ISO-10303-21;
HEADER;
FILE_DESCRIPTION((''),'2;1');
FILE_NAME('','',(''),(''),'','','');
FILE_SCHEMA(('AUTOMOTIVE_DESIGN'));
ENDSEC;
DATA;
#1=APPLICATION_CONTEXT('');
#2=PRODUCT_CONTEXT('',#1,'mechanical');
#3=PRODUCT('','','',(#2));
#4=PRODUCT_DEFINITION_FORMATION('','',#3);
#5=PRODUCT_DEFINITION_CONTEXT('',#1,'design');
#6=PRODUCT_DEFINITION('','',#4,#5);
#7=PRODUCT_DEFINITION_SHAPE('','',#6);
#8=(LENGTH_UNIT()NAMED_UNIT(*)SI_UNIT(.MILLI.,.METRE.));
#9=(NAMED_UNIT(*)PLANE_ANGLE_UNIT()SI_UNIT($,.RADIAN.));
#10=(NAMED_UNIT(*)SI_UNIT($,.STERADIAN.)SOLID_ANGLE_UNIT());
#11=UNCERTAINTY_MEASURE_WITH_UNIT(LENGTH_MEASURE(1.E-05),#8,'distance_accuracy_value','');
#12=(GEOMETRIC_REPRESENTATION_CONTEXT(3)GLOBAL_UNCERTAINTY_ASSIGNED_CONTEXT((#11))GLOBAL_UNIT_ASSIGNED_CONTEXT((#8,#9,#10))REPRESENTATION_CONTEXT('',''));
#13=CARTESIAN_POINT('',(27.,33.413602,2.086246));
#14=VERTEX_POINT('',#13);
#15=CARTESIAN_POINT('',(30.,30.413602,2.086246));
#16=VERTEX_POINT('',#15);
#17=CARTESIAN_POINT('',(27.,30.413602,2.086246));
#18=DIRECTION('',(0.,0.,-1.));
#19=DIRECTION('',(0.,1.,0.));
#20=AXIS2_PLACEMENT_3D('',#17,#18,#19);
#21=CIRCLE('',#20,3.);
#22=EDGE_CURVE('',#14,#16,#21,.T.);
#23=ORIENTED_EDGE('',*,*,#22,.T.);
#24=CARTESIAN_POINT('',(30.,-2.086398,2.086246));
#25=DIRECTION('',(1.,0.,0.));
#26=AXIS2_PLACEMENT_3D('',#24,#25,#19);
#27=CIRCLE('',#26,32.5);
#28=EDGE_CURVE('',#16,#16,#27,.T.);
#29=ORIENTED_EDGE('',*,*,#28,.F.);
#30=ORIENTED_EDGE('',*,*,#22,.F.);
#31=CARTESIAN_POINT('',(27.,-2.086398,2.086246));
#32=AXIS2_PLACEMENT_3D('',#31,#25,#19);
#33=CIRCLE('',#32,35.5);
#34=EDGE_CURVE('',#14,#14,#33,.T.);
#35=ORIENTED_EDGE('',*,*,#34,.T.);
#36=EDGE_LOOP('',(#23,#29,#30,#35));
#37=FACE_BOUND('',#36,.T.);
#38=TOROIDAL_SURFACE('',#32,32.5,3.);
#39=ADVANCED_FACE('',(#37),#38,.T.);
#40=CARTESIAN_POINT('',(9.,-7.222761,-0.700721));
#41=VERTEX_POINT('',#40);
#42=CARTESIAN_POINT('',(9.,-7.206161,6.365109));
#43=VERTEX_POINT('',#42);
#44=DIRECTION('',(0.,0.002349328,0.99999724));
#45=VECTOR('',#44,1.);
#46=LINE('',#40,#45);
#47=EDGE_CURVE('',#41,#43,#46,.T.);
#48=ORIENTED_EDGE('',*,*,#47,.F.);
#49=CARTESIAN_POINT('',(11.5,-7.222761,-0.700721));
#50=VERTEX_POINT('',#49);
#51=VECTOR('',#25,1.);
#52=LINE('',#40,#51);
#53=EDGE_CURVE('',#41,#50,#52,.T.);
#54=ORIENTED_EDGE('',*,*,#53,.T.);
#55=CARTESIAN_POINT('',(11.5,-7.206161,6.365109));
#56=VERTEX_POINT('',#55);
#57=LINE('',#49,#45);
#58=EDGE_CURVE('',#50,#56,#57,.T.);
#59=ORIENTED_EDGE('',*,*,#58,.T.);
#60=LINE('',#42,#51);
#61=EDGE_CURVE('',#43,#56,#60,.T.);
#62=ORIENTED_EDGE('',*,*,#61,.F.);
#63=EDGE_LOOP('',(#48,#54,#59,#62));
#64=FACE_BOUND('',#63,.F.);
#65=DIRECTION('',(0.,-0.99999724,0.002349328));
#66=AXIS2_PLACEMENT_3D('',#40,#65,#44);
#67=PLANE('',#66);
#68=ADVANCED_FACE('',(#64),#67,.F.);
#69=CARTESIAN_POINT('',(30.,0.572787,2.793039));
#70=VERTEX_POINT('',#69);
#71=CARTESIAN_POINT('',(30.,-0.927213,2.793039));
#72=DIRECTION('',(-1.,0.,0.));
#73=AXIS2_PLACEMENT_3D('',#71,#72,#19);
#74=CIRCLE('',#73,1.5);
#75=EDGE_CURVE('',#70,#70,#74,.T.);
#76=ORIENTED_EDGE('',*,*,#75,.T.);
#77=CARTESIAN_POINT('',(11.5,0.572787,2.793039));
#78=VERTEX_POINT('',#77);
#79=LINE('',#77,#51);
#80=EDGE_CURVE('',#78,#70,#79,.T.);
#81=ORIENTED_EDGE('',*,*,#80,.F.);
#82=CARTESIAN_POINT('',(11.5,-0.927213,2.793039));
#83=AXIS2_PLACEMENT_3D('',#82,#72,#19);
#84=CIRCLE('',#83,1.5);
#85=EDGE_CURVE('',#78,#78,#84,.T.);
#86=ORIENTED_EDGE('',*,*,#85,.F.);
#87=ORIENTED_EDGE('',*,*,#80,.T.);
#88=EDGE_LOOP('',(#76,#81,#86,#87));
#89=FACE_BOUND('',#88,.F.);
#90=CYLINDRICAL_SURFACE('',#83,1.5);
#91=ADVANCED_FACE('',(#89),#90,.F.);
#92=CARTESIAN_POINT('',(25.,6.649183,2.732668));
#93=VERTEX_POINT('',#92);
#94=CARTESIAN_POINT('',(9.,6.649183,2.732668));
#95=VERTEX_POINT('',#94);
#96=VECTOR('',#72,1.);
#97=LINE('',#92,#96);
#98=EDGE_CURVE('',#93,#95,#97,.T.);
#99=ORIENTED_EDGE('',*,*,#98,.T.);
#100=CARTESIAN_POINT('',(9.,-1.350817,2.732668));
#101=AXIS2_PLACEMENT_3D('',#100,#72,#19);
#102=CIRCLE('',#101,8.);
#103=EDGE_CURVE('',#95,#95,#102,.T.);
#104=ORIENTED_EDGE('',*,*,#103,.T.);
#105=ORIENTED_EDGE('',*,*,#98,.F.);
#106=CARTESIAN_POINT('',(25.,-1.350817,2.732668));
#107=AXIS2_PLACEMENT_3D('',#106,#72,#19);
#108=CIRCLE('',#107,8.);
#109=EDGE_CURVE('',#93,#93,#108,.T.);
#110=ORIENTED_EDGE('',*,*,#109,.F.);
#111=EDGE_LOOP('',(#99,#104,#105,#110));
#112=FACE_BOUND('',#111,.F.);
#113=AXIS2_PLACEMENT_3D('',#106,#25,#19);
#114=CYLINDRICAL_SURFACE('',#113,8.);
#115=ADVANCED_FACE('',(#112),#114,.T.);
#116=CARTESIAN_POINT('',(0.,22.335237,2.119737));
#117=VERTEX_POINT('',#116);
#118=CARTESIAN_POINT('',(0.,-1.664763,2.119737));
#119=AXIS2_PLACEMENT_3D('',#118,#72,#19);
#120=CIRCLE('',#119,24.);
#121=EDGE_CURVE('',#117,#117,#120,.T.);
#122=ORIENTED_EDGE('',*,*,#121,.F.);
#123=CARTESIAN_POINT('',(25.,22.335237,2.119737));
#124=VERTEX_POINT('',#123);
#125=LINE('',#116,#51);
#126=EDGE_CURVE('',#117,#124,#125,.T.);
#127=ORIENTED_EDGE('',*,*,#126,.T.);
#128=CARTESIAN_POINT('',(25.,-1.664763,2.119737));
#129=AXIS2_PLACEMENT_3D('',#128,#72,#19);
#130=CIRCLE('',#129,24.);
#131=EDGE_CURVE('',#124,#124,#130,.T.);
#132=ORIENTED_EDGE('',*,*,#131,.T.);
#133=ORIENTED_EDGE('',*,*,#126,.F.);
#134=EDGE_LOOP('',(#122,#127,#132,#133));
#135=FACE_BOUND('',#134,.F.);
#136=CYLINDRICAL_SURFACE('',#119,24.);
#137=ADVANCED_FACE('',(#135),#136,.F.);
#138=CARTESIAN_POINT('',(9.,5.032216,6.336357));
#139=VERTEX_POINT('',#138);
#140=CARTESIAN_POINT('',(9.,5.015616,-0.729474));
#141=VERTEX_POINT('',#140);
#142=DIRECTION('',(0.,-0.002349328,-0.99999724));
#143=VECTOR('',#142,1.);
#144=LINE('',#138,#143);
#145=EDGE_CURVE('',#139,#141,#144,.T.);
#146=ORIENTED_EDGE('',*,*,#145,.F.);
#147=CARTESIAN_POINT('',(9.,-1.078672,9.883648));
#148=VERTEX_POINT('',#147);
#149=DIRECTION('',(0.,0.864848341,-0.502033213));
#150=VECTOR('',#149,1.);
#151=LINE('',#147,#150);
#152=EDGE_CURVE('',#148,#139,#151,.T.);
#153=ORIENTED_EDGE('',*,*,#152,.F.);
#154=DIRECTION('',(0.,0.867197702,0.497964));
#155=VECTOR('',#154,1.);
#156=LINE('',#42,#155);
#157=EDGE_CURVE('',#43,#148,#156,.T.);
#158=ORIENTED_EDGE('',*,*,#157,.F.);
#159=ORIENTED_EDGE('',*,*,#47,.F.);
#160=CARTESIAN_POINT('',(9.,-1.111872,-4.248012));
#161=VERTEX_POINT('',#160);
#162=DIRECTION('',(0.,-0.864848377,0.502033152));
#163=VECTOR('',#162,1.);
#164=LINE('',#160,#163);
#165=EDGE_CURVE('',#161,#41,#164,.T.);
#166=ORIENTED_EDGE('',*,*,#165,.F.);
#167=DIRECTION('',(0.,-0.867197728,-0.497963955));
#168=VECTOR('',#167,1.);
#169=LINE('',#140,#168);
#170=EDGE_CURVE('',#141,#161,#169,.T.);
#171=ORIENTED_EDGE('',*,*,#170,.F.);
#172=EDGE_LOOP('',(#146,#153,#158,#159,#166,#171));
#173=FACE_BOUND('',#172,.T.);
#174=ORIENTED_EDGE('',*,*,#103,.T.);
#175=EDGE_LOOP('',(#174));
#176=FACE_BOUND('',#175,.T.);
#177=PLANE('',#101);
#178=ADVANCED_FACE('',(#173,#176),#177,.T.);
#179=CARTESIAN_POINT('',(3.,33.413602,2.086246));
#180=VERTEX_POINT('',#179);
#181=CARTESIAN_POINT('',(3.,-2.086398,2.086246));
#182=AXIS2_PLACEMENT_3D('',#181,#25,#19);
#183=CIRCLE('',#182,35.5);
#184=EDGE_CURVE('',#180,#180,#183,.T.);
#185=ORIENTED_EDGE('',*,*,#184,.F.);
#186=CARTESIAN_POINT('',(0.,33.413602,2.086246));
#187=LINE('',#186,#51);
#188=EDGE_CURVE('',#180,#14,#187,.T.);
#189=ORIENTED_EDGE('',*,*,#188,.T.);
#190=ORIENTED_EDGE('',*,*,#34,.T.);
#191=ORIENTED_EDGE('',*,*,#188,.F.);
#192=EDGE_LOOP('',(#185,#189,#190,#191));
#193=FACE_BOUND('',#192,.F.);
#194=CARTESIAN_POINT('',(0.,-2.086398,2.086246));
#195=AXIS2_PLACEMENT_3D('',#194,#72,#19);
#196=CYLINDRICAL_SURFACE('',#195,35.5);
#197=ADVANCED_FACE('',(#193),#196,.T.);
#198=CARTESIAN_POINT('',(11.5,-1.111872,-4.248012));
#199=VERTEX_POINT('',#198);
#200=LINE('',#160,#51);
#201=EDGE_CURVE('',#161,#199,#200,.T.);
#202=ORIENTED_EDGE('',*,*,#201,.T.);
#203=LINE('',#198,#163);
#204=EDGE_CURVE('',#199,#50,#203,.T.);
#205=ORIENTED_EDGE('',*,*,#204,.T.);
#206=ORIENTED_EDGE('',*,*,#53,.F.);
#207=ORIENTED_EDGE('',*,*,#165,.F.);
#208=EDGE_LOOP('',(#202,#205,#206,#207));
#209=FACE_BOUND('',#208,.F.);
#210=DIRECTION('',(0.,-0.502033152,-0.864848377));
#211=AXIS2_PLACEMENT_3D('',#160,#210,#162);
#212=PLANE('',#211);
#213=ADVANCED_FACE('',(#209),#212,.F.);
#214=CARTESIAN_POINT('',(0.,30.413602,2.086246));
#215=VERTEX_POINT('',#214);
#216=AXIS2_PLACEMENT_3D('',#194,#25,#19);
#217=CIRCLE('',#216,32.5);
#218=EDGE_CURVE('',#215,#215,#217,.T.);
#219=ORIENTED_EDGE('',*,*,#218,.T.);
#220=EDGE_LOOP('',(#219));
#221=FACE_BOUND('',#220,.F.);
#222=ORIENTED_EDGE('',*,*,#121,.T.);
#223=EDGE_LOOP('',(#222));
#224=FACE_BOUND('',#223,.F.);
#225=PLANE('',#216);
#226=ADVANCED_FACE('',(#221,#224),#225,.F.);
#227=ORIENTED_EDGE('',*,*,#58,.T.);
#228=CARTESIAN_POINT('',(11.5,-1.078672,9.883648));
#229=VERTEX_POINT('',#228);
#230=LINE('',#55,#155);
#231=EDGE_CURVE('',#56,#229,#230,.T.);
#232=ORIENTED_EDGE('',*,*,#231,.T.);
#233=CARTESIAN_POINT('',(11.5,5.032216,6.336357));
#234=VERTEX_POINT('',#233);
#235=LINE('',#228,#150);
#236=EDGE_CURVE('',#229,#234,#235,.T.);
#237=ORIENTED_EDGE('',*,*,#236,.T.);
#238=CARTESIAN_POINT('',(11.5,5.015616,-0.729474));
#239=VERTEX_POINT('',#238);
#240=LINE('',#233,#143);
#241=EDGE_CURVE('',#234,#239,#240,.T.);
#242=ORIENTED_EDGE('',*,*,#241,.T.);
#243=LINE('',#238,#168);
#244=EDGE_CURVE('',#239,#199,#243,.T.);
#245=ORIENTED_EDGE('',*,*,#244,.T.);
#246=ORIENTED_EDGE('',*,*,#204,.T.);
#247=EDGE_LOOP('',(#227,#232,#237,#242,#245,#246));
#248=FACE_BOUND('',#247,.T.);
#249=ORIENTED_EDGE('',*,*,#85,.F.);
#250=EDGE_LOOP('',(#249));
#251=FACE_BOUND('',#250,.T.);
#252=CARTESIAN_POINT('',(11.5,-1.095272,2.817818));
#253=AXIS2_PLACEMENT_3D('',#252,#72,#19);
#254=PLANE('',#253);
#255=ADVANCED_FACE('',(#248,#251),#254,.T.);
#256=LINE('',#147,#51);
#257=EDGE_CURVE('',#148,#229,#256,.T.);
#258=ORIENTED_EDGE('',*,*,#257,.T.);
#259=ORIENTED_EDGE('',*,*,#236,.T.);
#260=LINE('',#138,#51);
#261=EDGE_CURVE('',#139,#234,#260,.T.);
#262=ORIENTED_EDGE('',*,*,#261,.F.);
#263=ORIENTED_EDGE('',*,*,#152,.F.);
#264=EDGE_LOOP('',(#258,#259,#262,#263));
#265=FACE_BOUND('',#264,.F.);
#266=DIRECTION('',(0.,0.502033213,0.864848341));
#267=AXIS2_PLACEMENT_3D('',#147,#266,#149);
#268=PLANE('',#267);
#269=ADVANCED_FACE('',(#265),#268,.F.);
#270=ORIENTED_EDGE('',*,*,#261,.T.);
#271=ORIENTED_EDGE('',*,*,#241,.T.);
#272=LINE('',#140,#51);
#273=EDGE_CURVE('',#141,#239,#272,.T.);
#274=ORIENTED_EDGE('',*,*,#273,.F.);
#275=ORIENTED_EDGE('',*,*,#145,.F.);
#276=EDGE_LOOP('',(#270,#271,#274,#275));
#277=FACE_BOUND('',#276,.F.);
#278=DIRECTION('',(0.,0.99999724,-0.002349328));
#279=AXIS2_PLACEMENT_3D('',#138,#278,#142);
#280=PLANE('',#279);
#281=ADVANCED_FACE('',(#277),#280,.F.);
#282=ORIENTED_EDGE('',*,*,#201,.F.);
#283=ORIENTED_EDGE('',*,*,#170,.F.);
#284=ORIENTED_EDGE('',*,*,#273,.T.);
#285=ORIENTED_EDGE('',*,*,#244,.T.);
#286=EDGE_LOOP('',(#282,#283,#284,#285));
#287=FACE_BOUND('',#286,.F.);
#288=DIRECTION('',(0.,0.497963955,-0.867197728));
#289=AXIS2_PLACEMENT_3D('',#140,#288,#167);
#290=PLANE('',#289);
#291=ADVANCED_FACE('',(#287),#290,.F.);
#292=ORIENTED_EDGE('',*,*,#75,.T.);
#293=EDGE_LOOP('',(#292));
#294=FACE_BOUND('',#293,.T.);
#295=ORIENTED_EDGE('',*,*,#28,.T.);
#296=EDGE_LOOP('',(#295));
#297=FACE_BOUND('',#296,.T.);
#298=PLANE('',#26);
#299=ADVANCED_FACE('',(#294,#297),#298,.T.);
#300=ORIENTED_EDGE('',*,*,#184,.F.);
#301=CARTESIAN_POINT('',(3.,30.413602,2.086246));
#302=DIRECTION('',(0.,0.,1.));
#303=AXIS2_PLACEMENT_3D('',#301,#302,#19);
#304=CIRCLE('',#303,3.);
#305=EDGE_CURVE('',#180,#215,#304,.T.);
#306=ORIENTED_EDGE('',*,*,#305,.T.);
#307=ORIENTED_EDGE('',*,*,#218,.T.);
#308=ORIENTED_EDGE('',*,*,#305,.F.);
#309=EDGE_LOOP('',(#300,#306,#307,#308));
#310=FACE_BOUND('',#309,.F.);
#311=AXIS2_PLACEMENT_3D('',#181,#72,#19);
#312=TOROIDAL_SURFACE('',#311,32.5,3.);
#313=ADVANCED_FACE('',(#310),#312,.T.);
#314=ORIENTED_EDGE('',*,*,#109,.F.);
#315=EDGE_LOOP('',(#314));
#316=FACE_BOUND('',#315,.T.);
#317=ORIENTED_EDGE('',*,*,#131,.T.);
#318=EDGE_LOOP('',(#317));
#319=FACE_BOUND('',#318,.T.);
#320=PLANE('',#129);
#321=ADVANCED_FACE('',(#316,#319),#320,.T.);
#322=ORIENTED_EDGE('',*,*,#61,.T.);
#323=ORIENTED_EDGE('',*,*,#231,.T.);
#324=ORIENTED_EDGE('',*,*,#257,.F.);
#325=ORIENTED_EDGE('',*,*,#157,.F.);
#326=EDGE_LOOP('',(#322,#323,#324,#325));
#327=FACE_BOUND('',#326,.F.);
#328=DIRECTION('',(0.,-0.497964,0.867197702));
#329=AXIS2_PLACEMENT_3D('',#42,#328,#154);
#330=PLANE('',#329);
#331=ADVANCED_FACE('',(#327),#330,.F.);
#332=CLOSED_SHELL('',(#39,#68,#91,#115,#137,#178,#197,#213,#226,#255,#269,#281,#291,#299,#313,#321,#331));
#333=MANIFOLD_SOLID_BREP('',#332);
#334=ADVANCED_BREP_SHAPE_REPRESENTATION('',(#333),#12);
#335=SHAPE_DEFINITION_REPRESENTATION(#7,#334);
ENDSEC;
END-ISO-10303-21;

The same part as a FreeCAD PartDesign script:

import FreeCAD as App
import Part
import Sketcher
from FreeCAD import Vector
Q = App.Units.Quantity


def edges_at(feature, points):
    """Names of the edges that pass closest to the given points."""
    edges = feature.Shape.Edges
    near = lambda p: min(range(len(edges)), key=lambda i: edges[i].distToShape(Part.Vertex(*p))[0])
    return sorted({f"Edge{near(p) + 1}" for p in points})

doc = App.newDocument("Part")
params = doc.addObject("Spreadsheet::Sheet", "Params")
for row, (alias, value) in enumerate([
    ("sketch1_diameter", "71 mm"),
    ("pad1_length", "30 mm"),
    ("sketch2_diameter", "48 mm"),
    ("pocket1_length", "25 mm"),
    ("sketch3_diameter", "16 mm"),
    ("pad2_length", "16 mm"),
    ("pocket2_length", "2.5 mm"),
    ("sketch5_diameter", "3 mm"),
    ("pocket3_length", "25 mm"),
    ("fillet_radius", "3 mm"),
    ("fillet2_radius", "3 mm"),
], start=1):
    params.set(f"A{row}", alias)
    params.set(f"B{row}", "=" + value)
    params.setAlias(f"B{row}", alias)

body = doc.addObject("PartDesign::Body", "Body")

# Sketch on YZ plane
sketch1 = body.newObject("Sketcher::SketchObject", "Sketch")
sketch1.AttachmentSupport = (doc.getObject("YZ_Plane"), [""])
sketch1.MapMode = "FlatFace"
sketch1.addGeometry(Part.Circle(Vector(-2.086398, 2.086246, 0), Vector(0, 0, 1), 35.5), False)
sketch1.addConstraint([
    Sketcher.Constraint("Diameter", 0, Q("71 mm")),
    Sketcher.Constraint("DistanceX", 0, 3, -1, 1, Q("2.086398 mm")),
    Sketcher.Constraint("DistanceY", -1, 1, 0, 3, Q("2.086246 mm")),
])
sketch1.setExpression("Constraints[0]", "Params.sketch1_diameter")
pad1 = body.newObject("PartDesign::Pad", "Pad")
pad1.Profile = sketch1
pad1.setExpression("Length", "Params.pad1_length")

# Sketch on YZ plane
sketch2 = body.newObject("Sketcher::SketchObject", "Sketch001")
sketch2.AttachmentSupport = (doc.getObject("YZ_Plane"), [""])
sketch2.MapMode = "FlatFace"
sketch2.addGeometry(Part.Circle(Vector(-1.664763, 2.119737, 0), Vector(0, 0, 1), 24), False)
sketch2.addConstraint([
    Sketcher.Constraint("Diameter", 0, Q("48 mm")),
    Sketcher.Constraint("DistanceX", 0, 3, -1, 1, Q("1.664763 mm")),
    Sketcher.Constraint("DistanceY", -1, 1, 0, 3, Q("2.119737 mm")),
])
sketch2.setExpression("Constraints[0]", "Params.sketch2_diameter")
pocket1 = body.newObject("PartDesign::Pocket", "Pocket")
pocket1.Profile = sketch2
pocket1.setExpression("Length", "Params.pocket1_length")
pocket1.Reversed = True

# Sketch on YZ plane
sketch3 = body.newObject("Sketcher::SketchObject", "Sketch002")
sketch3.AttachmentSupport = (doc.getObject("YZ_Plane"), [""])
sketch3.MapMode = "FlatFace"
sketch3.AttachmentOffset = App.Placement(Vector(0, 0, 25), App.Rotation())
sketch3.addGeometry(Part.Circle(Vector(-1.350817, 2.732668, 0), Vector(0, 0, 1), 8), False)
sketch3.addConstraint([
    Sketcher.Constraint("Diameter", 0, Q("16 mm")),
    Sketcher.Constraint("DistanceX", 0, 3, -1, 1, Q("1.350817 mm")),
    Sketcher.Constraint("DistanceY", -1, 1, 0, 3, Q("2.732668 mm")),
])
sketch3.setExpression("Constraints[0]", "Params.sketch3_diameter")
pad2 = body.newObject("PartDesign::Pad", "Pad001")
pad2.Profile = sketch3
pad2.setExpression("Length", "Params.pad2_length")
pad2.Reversed = True

# Sketch on YZ plane
sketch4 = body.newObject("Sketcher::SketchObject", "Sketch003")
sketch4.AttachmentSupport = (doc.getObject("YZ_Plane"), [""])
sketch4.MapMode = "FlatFace"
sketch4.AttachmentOffset = App.Placement(Vector(0, 0, 9), App.Rotation())
sketch4.addGeometry([
    Part.LineSegment(Vector(-1.111872, -4.248012, 0), Vector(-7.222761, -0.700721, 0)),  # 0
    Part.LineSegment(Vector(-7.222761, -0.700721, 0), Vector(-7.206161, 6.365109, 0)),  # 1
    Part.LineSegment(Vector(-7.206161, 6.365109, 0), Vector(-1.078672, 9.883648, 0)),  # 2
    Part.LineSegment(Vector(-1.078672, 9.883648, 0), Vector(5.032216, 6.336357, 0)),  # 3
    Part.LineSegment(Vector(5.032216, 6.336357, 0), Vector(5.015616, -0.729474, 0)),  # 4
    Part.LineSegment(Vector(5.015616, -0.729474, 0), Vector(-1.111872, -4.248012, 0)),  # 5
], False)
sketch4.addConstraint([
    Sketcher.Constraint("Coincident", 0, 2, 1, 1),
    Sketcher.Constraint("Coincident", 1, 2, 2, 1),
    Sketcher.Constraint("Coincident", 2, 2, 3, 1),
    Sketcher.Constraint("Coincident", 3, 2, 4, 1),
    Sketcher.Constraint("Coincident", 4, 2, 5, 1),
    Sketcher.Constraint("Coincident", 5, 2, 0, 1),
    Sketcher.Constraint("Parallel", 0, 3),
    Sketcher.Constraint("Parallel", 1, 4),
    Sketcher.Constraint("Parallel", 2, 5),
    Sketcher.Constraint("Equal", 0, 1),
    Sketcher.Constraint("Equal", 1, 2),
    Sketcher.Constraint("Equal", 2, 3),
    Sketcher.Constraint("DistanceX", 0, 2, 1, 2, Q("0.0166 mm")),
    Sketcher.Constraint("DistanceX", 5, 2, 2, 2, Q("0.0332 mm")),
    Sketcher.Constraint("Distance", 0, Q("7.06585 mm")),
    Sketcher.Constraint("DistanceX", 0, 2, -1, 1, Q("7.222761 mm")),
    Sketcher.Constraint("DistanceY", 0, 2, -1, 1, Q("0.700721 mm")),
    Sketcher.Constraint("DistanceY", -1, 1, 2, 2, Q("9.883648 mm")),
])
pocket2 = body.newObject("PartDesign::Pocket", "Pocket001")
pocket2.Profile = sketch4
pocket2.setExpression("Length", "Params.pocket2_length")
pocket2.Reversed = True

# Sketch on YZ plane
sketch5 = body.newObject("Sketcher::SketchObject", "Sketch004")
sketch5.AttachmentSupport = (doc.getObject("YZ_Plane"), [""])
sketch5.MapMode = "FlatFace"
sketch5.AttachmentOffset = App.Placement(Vector(0, 0, 11.5), App.Rotation())
sketch5.addGeometry(Part.Circle(Vector(-0.927213, 2.793039, 0), Vector(0, 0, 1), 1.5), False)
sketch5.addConstraint([
    Sketcher.Constraint("Diameter", 0, Q("3 mm")),
    Sketcher.Constraint("DistanceY", -1, 1, 0, 3, Q("2.793039 mm")),
    Sketcher.Constraint("DistanceX", 0, 3, -1, 1, Q("0.927213 mm")),
])
sketch5.setExpression("Constraints[0]", "Params.sketch5_diameter")
pocket3 = body.newObject("PartDesign::Pocket", "Pocket002")
pocket3.Profile = sketch5
pocket3.setExpression("Length", "Params.pocket3_length")
pocket3.Reversed = True
doc.recompute()

fillet = body.newObject("PartDesign::Fillet", "Fillet")
fillet.Base = (pocket3, edges_at(pocket3, [(0, -37.586, 2.086)]))
fillet.setExpression("Radius", "Params.fillet_radius")
doc.recompute()

fillet2 = body.newObject("PartDesign::Fillet", "Fillet001")
fillet2.Base = (fillet, edges_at(fillet, [(30, -37.586, 2.086)]))
fillet2.setExpression("Radius", "Params.fillet2_radius")

doc.recompute()
